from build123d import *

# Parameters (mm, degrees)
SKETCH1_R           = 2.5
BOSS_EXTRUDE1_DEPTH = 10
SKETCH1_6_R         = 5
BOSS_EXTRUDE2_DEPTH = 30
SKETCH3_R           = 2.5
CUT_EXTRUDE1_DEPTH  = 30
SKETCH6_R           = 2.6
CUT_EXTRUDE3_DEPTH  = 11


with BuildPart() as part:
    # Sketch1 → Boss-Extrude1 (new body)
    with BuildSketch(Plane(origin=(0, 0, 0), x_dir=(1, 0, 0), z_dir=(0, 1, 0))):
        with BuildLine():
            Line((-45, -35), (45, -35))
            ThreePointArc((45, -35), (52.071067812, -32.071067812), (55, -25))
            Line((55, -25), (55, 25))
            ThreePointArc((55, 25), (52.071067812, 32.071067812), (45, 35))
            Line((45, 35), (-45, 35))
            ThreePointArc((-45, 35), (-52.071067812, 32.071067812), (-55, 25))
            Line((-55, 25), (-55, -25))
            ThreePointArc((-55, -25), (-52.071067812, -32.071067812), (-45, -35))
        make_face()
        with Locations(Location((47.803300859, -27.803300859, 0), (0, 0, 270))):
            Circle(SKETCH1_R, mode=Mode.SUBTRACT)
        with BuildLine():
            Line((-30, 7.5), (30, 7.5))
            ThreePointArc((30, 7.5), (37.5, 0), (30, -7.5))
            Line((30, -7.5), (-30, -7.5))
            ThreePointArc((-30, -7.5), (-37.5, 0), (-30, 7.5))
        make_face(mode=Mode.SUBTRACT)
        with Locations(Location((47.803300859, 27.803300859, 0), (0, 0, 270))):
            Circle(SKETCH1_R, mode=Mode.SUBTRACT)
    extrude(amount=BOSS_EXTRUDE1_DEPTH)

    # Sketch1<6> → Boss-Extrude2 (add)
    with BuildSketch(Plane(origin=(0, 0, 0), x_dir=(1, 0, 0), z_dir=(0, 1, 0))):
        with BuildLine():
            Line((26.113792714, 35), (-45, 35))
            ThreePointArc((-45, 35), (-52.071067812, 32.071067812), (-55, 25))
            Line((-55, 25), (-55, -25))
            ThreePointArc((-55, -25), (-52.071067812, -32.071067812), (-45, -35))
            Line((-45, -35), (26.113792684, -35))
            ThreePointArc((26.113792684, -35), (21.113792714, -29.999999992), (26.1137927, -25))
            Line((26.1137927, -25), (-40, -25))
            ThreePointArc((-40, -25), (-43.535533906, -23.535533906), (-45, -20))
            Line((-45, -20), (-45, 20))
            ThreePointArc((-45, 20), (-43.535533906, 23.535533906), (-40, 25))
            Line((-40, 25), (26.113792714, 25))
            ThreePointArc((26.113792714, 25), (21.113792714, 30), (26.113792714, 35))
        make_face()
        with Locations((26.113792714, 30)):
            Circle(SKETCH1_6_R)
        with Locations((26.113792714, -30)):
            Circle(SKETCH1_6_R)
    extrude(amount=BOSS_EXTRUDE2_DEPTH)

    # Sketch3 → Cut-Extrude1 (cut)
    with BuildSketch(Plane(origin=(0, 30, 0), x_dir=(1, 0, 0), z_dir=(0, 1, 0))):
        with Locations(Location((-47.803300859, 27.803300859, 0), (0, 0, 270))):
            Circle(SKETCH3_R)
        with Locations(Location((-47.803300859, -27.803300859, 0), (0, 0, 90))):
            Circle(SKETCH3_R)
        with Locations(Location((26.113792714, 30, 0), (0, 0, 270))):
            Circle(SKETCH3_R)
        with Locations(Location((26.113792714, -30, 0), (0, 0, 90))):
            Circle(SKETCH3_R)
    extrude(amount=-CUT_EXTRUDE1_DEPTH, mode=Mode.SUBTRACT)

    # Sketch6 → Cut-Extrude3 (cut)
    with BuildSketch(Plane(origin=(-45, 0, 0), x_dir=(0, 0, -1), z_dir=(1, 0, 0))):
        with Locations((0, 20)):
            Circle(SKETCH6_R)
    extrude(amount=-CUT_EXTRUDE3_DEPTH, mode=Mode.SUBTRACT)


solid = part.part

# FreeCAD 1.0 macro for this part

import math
import FreeCAD as App
import Part
import Sketcher
from FreeCAD import Vector
Q = App.Units.Quantity

doc = App.newDocument("Part")
body = doc.addObject("PartDesign::Body", "Body")

# Sketch on XZ plane
sketch1 = doc.addObject("Sketcher::SketchObject", "Sketch")
body.addObject(sketch1)
sketch1.AttachmentSupport = (doc.XZ_Plane, [""])
sketch1.MapMode = "FlatFace"
sketch1.addGeometry(Part.LineSegment(Vector(-45, 35, 0), Vector(45, 35, 0)), False)
sketch1.addGeometry(Part.ArcOfCircle(Part.Circle(Vector(45, 25, 0), Vector(0, 0, 1), 10), math.radians(0), math.radians(90)), False)
sketch1.addGeometry(Part.LineSegment(Vector(55, 25, 0), Vector(55, -25, 0)), False)
sketch1.addGeometry(Part.ArcOfCircle(Part.Circle(Vector(45, -25, 0), Vector(0, 0, 1), 10), math.radians(-90), math.radians(0)), False)
sketch1.addGeometry(Part.LineSegment(Vector(45, -35, 0), Vector(-45, -35, 0)), False)
sketch1.addGeometry(Part.ArcOfCircle(Part.Circle(Vector(-45, -25, 0), Vector(0, 0, 1), 10), math.radians(180), math.radians(270)), False)
sketch1.addGeometry(Part.LineSegment(Vector(-55, -25, 0), Vector(-55, 25, 0)), False)
sketch1.addGeometry(Part.ArcOfCircle(Part.Circle(Vector(-45, 25, 0), Vector(0, 0, 1), 10), math.radians(90), math.radians(180)), False)
sketch1.addGeometry(Part.Circle(Vector(47.8, 27.8, 0), Vector(0, 0, 1), 2.5), False)
sketch1.addGeometry(Part.ArcOfCircle(Part.Circle(Vector(-30, 0, 0), Vector(0, 0, 1), 7.5), math.radians(90), math.radians(270)), False)
sketch1.addGeometry(Part.LineSegment(Vector(-30, -7.5, 0), Vector(30, -7.5, 0)), False)
sketch1.addGeometry(Part.ArcOfCircle(Part.Circle(Vector(30, 0, 0), Vector(0, 0, 1), 7.5), math.radians(-90), math.radians(90)), False)
sketch1.addGeometry(Part.LineSegment(Vector(30, 7.5, 0), Vector(-30, 7.5, 0)), False)
sketch1.addGeometry(Part.Circle(Vector(47.8, -27.8, 0), Vector(0, 0, 1), 2.5), False)
sketch1.addConstraint(Sketcher.Constraint("Tangent", 0, 2, 1, 2))
sketch1.addConstraint(Sketcher.Constraint("Tangent", 1, 1, 2, 1))
sketch1.addConstraint(Sketcher.Constraint("Tangent", 2, 2, 3, 2))
sketch1.addConstraint(Sketcher.Constraint("Tangent", 3, 1, 4, 1))
sketch1.addConstraint(Sketcher.Constraint("Tangent", 4, 2, 5, 2))
sketch1.addConstraint(Sketcher.Constraint("Tangent", 5, 1, 6, 1))
sketch1.addConstraint(Sketcher.Constraint("Tangent", 6, 2, 7, 2))
sketch1.addConstraint(Sketcher.Constraint("Tangent", 7, 1, 0, 1))
sketch1.addConstraint(Sketcher.Constraint("Tangent", 9, 2, 10, 1))
sketch1.addConstraint(Sketcher.Constraint("Tangent", 10, 2, 11, 1))
sketch1.addConstraint(Sketcher.Constraint("Tangent", 11, 2, 12, 1))
sketch1.addConstraint(Sketcher.Constraint("Tangent", 12, 2, 9, 1))
sketch1.addConstraint(Sketcher.Constraint("Horizontal", 0))
sketch1.addConstraint(Sketcher.Constraint("Vertical", 2))
sketch1.addConstraint(Sketcher.Constraint("Horizontal", 4))
sketch1.addConstraint(Sketcher.Constraint("Vertical", 6))
sketch1.addConstraint(Sketcher.Constraint("Horizontal", 10))
sketch1.addConstraint(Sketcher.Constraint("Horizontal", 12))
sketch1.addConstraint(Sketcher.Constraint("Equal", 1, 3))
sketch1.addConstraint(Sketcher.Constraint("Equal", 3, 5))
sketch1.addConstraint(Sketcher.Constraint("Equal", 5, 7))
sketch1.addConstraint(Sketcher.Constraint("Equal", 8, 13))
sketch1.addConstraint(Sketcher.Constraint("Symmetric", 1, 3, 5, 3, -1, 1))
sketch1.addConstraint(Sketcher.Constraint("Symmetric", 9, 3, 11, 3, -1, 1))
sketch1.addConstraint(Sketcher.Constraint("Symmetric", 8, 3, 13, 3, -1))
sketch1.addConstraint(Sketcher.Constraint("Diameter", 8, Q("5 mm")))
sketch1.addConstraint(Sketcher.Constraint("Radius", 1, Q("10 mm")))
sketch1.addConstraint(Sketcher.Constraint("Radius", 9, Q("7.5 mm")))
sketch1.addConstraint(Sketcher.Constraint("DistanceX", 0, 1, 0, 2, Q("90 mm")))
sketch1.addConstraint(Sketcher.Constraint("DistanceX", 10, 1, 10, 2, Q("60 mm")))
sketch1.addConstraint(Sketcher.Constraint("DistanceY", 2, 2, 2, 1, Q("50 mm")))
sketch1.addConstraint(Sketcher.Constraint("DistanceX", -1, 1, 8, 3, Q("47.803301 mm")))
sketch1.addConstraint(Sketcher.Constraint("DistanceY", -1, 1, 8, 3, Q("27.803301 mm")))
pad1 = doc.addObject("PartDesign::Pad", "Pad")
body.addObject(pad1)
pad1.Profile = sketch1
pad1.Length = 10
pad1.Reversed = True

# Sketch on XZ plane
sketch2 = doc.addObject("Sketcher::SketchObject", "Sketch001")
body.addObject(sketch2)
sketch2.AttachmentSupport = (doc.XZ_Plane, [""])
sketch2.MapMode = "FlatFace"
sketch2.addGeometry(Part.LineSegment(Vector(26, -35, 0), Vector(-45, -35, 0)), False)
sketch2.addGeometry(Part.ArcOfCircle(Part.Circle(Vector(-45, -25, 0), Vector(0, 0, 1), 10), math.radians(180), math.radians(270)), False)
sketch2.addGeometry(Part.LineSegment(Vector(-55, -25, 0), Vector(-55, 25, 0)), False)
sketch2.addGeometry(Part.ArcOfCircle(Part.Circle(Vector(-45, 25, 0), Vector(0, 0, 1), 10), math.radians(90), math.radians(180)), False)
sketch2.addGeometry(Part.LineSegment(Vector(-45, 35, 0), Vector(26, 35, 0)), False)
sketch2.addGeometry(Part.ArcOfCircle(Part.Circle(Vector(26, 30, 0), Vector(0, 0, 1), 5), math.radians(-90), math.radians(90)), False)
sketch2.addGeometry(Part.LineSegment(Vector(26, 25, 0), Vector(-40, 25, 0)), False)
sketch2.addGeometry(Part.ArcOfCircle(Part.Circle(Vector(-40, 20, 0), Vector(0, 0, 1), 5), math.radians(90), math.radians(180)), False)
sketch2.addGeometry(Part.LineSegment(Vector(-45, 20, 0), Vector(-45, -20, 0)), False)
sketch2.addGeometry(Part.ArcOfCircle(Part.Circle(Vector(-40, -20, 0), Vector(0, 0, 1), 5), math.radians(180), math.radians(270)), False)
sketch2.addGeometry(Part.LineSegment(Vector(-40, -25, 0), Vector(26, -25, 0)), False)
sketch2.addGeometry(Part.ArcOfCircle(Part.Circle(Vector(26, -30, 0), Vector(0, 0, 1), 5), math.radians(-90), math.radians(90)), False)
sketch2.addConstraint(Sketcher.Constraint("Tangent", 0, 2, 1, 2))
sketch2.addConstraint(Sketcher.Constraint("Tangent", 1, 1, 2, 1))
sketch2.addConstraint(Sketcher.Constraint("Tangent", 2, 2, 3, 2))
sketch2.addConstraint(Sketcher.Constraint("Tangent", 3, 1, 4, 1))
sketch2.addConstraint(Sketcher.Constraint("Tangent", 4, 2, 5, 2))
sketch2.addConstraint(Sketcher.Constraint("Tangent", 5, 1, 6, 1))
sketch2.addConstraint(Sketcher.Constraint("Tangent", 6, 2, 7, 1))
sketch2.addConstraint(Sketcher.Constraint("Tangent", 7, 2, 8, 1))
sketch2.addConstraint(Sketcher.Constraint("Tangent", 8, 2, 9, 1))
sketch2.addConstraint(Sketcher.Constraint("Tangent", 9, 2, 10, 1))
sketch2.addConstraint(Sketcher.Constraint("Tangent", 10, 2, 11, 2))
sketch2.addConstraint(Sketcher.Constraint("Tangent", 11, 1, 0, 1))
sketch2.addConstraint(Sketcher.Constraint("Horizontal", 0))
sketch2.addConstraint(Sketcher.Constraint("Vertical", 2))
sketch2.addConstraint(Sketcher.Constraint("Horizontal", 4))
sketch2.addConstraint(Sketcher.Constraint("Horizontal", 6))
sketch2.addConstraint(Sketcher.Constraint("Vertical", 8))
sketch2.addConstraint(Sketcher.Constraint("Horizontal", 10))
sketch2.addConstraint(Sketcher.Constraint("Equal", 1, 3))
sketch2.addConstraint(Sketcher.Constraint("Equal", 5, 7))
sketch2.addConstraint(Sketcher.Constraint("Equal", 7, 9))
sketch2.addConstraint(Sketcher.Constraint("Equal", 9, 11))
sketch2.addConstraint(Sketcher.Constraint("Symmetric", 5, 3, 11, 3, -1))
sketch2.addConstraint(Sketcher.Constraint("Horizontal", 2, 2, 5, 1))
sketch2.addConstraint(Sketcher.Constraint("Vertical", 3, 1, 7, 2))
sketch2.addConstraint(Sketcher.Constraint("Radius", 1, Q("10 mm")))
sketch2.addConstraint(Sketcher.Constraint("DistanceY", 2, 1, 2, 2, Q("50 mm")))
sketch2.addConstraint(Sketcher.Constraint("DistanceX", 1, 3, -1, 1, Q("45 mm")))
sketch2.addConstraint(Sketcher.Constraint("DistanceX", 0, 2, 0, 1, Q("71.113793 mm")))
pad2 = doc.addObject("PartDesign::Pad", "Pad001")
body.addObject(pad2)
pad2.Profile = sketch2
pad2.Length = 30
pad2.Reversed = True

# Sketch on XZ plane
sketch3 = doc.addObject("Sketcher::SketchObject", "Sketch002")
body.addObject(sketch3)
sketch3.AttachmentSupport = (doc.XZ_Plane, [""])
sketch3.MapMode = "FlatFace"
sketch3.AttachmentOffset = App.Placement(Vector(0, 0, -30), App.Rotation())
sketch3.addGeometry(Part.Circle(Vector(-47.8, -27.8, 0), Vector(0, 0, 1), 2.5), False)
sketch3.addGeometry(Part.Circle(Vector(-47.8, 27.8, 0), Vector(0, 0, 1), 2.5), False)
sketch3.addGeometry(Part.Circle(Vector(26.1, -30, 0), Vector(0, 0, 1), 2.5), False)
sketch3.addGeometry(Part.Circle(Vector(26.1, 30, 0), Vector(0, 0, 1), 2.5), False)
sketch3.addConstraint(Sketcher.Constraint("Equal", 0, 1))
sketch3.addConstraint(Sketcher.Constraint("Equal", 1, 2))
sketch3.addConstraint(Sketcher.Constraint("Equal", 2, 3))
sketch3.addConstraint(Sketcher.Constraint("Symmetric", 0, 3, 1, 3, -1))
sketch3.addConstraint(Sketcher.Constraint("Symmetric", 2, 3, 3, 3, -1))
sketch3.addConstraint(Sketcher.Constraint("Diameter", 0, Q("5 mm")))
sketch3.addConstraint(Sketcher.Constraint("DistanceY", 2, 3, -1, 1, Q("30 mm")))
sketch3.addConstraint(Sketcher.Constraint("DistanceX", 0, 3, -1, 1, Q("47.803301 mm")))
sketch3.addConstraint(Sketcher.Constraint("DistanceY", 0, 3, -1, 1, Q("27.803301 mm")))
sketch3.addConstraint(Sketcher.Constraint("DistanceX", -1, 1, 2, 3, Q("26.113793 mm")))
pocket1 = doc.addObject("PartDesign::Pocket", "Pocket")
body.addObject(pocket1)
pocket1.Profile = sketch3
pocket1.Length = 30
pocket1.Reversed = True

# Sketch on YZ plane
sketch4 = doc.addObject("Sketcher::SketchObject", "Sketch003")
body.addObject(sketch4)
sketch4.AttachmentSupport = (doc.YZ_Plane, [""])
sketch4.MapMode = "FlatFace"
sketch4.AttachmentOffset = App.Placement(Vector(0, 0, -45), App.Rotation())
sketch4.addGeometry(Part.Circle(Vector(20, 0, 0), Vector(0, 0, 1), 2.6), False)
sketch4.addConstraint(Sketcher.Constraint("PointOnObject", 0, 3, -1))
sketch4.addConstraint(Sketcher.Constraint("Diameter", 0, Q("5.2 mm")))
sketch4.addConstraint(Sketcher.Constraint("DistanceX", -1, 1, 0, 3, Q("20 mm")))
pocket2 = doc.addObject("PartDesign::Pocket", "Pocket001")
body.addObject(pocket2)
pocket2.Profile = sketch4
pocket2.Length = 11

doc.recompute()
